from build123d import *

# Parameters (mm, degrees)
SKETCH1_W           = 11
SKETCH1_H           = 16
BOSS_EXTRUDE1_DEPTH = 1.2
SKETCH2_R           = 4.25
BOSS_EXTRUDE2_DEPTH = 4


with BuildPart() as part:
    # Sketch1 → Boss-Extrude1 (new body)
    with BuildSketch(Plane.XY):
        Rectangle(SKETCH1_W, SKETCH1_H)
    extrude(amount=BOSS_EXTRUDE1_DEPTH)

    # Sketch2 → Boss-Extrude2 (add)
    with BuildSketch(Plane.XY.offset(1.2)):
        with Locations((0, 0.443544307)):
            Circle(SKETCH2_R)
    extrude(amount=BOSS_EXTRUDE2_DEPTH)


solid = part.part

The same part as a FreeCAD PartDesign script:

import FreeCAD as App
import Part
import Sketcher
Q = App.Units.Quantity


def add_polygon(sketch, points):
    """Adds a closed chain of lines whose ends are joined by coincident constraints."""
    first, n = sketch.GeometryCount, len(points)
    for a, b in zip(points, points[1:] + points[:1]):
        sketch.addGeometry(Part.LineSegment(App.Vector(*a, 0), App.Vector(*b, 0)), False)
    for i in range(n):
        sketch.addConstraint(Sketcher.Constraint("Coincident", first + i, 2, first + (i + 1) % n, 1))

doc = App.newDocument("Part")
body = doc.addObject("PartDesign::Body", "Body")

sketch1 = body.newObject("Sketcher::SketchObject", "Sketch")
sketch1.AttachmentSupport = (doc.getObject("XY_Plane"), [""])
sketch1.MapMode = "FlatFace"
add_polygon(sketch1, [(-5.5, 8), (-5.5, -8), (5.5, -8), (5.5, 8)])
sketch1.addConstraint([
    Sketcher.Constraint("Vertical", 0),
    Sketcher.Constraint("Horizontal", 1),
    Sketcher.Constraint("Vertical", 2),
    Sketcher.Constraint("Horizontal", 3),
    Sketcher.Constraint("Symmetric", 0, 2, 2, 2, -1, 1),
    Sketcher.Constraint("DistanceX", 1, 1, 1, 2, Q("11 mm")),
    Sketcher.Constraint("DistanceY", 0, 2, 0, 1, Q("16 mm")),
])
pad1 = body.newObject("PartDesign::Pad", "Pad")
pad1.Profile = sketch1
pad1.Length = 1.2

sketch2 = body.newObject("Sketcher::SketchObject", "Sketch001")
sketch2.AttachmentSupport = (doc.getObject("XY_Plane"), [""])
sketch2.MapMode = "FlatFace"
sketch2.AttachmentOffset = App.Placement(App.Vector(0, 0, 1.2), App.Rotation())
sketch2.addGeometry(Part.Circle(App.Vector(0, 0.443544, 0), App.Vector(0, 0, 1), 4.25), False)
sketch2.addConstraint([
    Sketcher.Constraint("PointOnObject", 0, 3, -2),
    Sketcher.Constraint("Diameter", 0, Q("8.5 mm")),
    Sketcher.Constraint("DistanceY", -1, 1, 0, 3, Q("0.443544 mm")),
])
pad2 = body.newObject("PartDesign::Pad", "Pad001")
pad2.Profile = sketch2
pad2.Length = 4

doc.recompute()
